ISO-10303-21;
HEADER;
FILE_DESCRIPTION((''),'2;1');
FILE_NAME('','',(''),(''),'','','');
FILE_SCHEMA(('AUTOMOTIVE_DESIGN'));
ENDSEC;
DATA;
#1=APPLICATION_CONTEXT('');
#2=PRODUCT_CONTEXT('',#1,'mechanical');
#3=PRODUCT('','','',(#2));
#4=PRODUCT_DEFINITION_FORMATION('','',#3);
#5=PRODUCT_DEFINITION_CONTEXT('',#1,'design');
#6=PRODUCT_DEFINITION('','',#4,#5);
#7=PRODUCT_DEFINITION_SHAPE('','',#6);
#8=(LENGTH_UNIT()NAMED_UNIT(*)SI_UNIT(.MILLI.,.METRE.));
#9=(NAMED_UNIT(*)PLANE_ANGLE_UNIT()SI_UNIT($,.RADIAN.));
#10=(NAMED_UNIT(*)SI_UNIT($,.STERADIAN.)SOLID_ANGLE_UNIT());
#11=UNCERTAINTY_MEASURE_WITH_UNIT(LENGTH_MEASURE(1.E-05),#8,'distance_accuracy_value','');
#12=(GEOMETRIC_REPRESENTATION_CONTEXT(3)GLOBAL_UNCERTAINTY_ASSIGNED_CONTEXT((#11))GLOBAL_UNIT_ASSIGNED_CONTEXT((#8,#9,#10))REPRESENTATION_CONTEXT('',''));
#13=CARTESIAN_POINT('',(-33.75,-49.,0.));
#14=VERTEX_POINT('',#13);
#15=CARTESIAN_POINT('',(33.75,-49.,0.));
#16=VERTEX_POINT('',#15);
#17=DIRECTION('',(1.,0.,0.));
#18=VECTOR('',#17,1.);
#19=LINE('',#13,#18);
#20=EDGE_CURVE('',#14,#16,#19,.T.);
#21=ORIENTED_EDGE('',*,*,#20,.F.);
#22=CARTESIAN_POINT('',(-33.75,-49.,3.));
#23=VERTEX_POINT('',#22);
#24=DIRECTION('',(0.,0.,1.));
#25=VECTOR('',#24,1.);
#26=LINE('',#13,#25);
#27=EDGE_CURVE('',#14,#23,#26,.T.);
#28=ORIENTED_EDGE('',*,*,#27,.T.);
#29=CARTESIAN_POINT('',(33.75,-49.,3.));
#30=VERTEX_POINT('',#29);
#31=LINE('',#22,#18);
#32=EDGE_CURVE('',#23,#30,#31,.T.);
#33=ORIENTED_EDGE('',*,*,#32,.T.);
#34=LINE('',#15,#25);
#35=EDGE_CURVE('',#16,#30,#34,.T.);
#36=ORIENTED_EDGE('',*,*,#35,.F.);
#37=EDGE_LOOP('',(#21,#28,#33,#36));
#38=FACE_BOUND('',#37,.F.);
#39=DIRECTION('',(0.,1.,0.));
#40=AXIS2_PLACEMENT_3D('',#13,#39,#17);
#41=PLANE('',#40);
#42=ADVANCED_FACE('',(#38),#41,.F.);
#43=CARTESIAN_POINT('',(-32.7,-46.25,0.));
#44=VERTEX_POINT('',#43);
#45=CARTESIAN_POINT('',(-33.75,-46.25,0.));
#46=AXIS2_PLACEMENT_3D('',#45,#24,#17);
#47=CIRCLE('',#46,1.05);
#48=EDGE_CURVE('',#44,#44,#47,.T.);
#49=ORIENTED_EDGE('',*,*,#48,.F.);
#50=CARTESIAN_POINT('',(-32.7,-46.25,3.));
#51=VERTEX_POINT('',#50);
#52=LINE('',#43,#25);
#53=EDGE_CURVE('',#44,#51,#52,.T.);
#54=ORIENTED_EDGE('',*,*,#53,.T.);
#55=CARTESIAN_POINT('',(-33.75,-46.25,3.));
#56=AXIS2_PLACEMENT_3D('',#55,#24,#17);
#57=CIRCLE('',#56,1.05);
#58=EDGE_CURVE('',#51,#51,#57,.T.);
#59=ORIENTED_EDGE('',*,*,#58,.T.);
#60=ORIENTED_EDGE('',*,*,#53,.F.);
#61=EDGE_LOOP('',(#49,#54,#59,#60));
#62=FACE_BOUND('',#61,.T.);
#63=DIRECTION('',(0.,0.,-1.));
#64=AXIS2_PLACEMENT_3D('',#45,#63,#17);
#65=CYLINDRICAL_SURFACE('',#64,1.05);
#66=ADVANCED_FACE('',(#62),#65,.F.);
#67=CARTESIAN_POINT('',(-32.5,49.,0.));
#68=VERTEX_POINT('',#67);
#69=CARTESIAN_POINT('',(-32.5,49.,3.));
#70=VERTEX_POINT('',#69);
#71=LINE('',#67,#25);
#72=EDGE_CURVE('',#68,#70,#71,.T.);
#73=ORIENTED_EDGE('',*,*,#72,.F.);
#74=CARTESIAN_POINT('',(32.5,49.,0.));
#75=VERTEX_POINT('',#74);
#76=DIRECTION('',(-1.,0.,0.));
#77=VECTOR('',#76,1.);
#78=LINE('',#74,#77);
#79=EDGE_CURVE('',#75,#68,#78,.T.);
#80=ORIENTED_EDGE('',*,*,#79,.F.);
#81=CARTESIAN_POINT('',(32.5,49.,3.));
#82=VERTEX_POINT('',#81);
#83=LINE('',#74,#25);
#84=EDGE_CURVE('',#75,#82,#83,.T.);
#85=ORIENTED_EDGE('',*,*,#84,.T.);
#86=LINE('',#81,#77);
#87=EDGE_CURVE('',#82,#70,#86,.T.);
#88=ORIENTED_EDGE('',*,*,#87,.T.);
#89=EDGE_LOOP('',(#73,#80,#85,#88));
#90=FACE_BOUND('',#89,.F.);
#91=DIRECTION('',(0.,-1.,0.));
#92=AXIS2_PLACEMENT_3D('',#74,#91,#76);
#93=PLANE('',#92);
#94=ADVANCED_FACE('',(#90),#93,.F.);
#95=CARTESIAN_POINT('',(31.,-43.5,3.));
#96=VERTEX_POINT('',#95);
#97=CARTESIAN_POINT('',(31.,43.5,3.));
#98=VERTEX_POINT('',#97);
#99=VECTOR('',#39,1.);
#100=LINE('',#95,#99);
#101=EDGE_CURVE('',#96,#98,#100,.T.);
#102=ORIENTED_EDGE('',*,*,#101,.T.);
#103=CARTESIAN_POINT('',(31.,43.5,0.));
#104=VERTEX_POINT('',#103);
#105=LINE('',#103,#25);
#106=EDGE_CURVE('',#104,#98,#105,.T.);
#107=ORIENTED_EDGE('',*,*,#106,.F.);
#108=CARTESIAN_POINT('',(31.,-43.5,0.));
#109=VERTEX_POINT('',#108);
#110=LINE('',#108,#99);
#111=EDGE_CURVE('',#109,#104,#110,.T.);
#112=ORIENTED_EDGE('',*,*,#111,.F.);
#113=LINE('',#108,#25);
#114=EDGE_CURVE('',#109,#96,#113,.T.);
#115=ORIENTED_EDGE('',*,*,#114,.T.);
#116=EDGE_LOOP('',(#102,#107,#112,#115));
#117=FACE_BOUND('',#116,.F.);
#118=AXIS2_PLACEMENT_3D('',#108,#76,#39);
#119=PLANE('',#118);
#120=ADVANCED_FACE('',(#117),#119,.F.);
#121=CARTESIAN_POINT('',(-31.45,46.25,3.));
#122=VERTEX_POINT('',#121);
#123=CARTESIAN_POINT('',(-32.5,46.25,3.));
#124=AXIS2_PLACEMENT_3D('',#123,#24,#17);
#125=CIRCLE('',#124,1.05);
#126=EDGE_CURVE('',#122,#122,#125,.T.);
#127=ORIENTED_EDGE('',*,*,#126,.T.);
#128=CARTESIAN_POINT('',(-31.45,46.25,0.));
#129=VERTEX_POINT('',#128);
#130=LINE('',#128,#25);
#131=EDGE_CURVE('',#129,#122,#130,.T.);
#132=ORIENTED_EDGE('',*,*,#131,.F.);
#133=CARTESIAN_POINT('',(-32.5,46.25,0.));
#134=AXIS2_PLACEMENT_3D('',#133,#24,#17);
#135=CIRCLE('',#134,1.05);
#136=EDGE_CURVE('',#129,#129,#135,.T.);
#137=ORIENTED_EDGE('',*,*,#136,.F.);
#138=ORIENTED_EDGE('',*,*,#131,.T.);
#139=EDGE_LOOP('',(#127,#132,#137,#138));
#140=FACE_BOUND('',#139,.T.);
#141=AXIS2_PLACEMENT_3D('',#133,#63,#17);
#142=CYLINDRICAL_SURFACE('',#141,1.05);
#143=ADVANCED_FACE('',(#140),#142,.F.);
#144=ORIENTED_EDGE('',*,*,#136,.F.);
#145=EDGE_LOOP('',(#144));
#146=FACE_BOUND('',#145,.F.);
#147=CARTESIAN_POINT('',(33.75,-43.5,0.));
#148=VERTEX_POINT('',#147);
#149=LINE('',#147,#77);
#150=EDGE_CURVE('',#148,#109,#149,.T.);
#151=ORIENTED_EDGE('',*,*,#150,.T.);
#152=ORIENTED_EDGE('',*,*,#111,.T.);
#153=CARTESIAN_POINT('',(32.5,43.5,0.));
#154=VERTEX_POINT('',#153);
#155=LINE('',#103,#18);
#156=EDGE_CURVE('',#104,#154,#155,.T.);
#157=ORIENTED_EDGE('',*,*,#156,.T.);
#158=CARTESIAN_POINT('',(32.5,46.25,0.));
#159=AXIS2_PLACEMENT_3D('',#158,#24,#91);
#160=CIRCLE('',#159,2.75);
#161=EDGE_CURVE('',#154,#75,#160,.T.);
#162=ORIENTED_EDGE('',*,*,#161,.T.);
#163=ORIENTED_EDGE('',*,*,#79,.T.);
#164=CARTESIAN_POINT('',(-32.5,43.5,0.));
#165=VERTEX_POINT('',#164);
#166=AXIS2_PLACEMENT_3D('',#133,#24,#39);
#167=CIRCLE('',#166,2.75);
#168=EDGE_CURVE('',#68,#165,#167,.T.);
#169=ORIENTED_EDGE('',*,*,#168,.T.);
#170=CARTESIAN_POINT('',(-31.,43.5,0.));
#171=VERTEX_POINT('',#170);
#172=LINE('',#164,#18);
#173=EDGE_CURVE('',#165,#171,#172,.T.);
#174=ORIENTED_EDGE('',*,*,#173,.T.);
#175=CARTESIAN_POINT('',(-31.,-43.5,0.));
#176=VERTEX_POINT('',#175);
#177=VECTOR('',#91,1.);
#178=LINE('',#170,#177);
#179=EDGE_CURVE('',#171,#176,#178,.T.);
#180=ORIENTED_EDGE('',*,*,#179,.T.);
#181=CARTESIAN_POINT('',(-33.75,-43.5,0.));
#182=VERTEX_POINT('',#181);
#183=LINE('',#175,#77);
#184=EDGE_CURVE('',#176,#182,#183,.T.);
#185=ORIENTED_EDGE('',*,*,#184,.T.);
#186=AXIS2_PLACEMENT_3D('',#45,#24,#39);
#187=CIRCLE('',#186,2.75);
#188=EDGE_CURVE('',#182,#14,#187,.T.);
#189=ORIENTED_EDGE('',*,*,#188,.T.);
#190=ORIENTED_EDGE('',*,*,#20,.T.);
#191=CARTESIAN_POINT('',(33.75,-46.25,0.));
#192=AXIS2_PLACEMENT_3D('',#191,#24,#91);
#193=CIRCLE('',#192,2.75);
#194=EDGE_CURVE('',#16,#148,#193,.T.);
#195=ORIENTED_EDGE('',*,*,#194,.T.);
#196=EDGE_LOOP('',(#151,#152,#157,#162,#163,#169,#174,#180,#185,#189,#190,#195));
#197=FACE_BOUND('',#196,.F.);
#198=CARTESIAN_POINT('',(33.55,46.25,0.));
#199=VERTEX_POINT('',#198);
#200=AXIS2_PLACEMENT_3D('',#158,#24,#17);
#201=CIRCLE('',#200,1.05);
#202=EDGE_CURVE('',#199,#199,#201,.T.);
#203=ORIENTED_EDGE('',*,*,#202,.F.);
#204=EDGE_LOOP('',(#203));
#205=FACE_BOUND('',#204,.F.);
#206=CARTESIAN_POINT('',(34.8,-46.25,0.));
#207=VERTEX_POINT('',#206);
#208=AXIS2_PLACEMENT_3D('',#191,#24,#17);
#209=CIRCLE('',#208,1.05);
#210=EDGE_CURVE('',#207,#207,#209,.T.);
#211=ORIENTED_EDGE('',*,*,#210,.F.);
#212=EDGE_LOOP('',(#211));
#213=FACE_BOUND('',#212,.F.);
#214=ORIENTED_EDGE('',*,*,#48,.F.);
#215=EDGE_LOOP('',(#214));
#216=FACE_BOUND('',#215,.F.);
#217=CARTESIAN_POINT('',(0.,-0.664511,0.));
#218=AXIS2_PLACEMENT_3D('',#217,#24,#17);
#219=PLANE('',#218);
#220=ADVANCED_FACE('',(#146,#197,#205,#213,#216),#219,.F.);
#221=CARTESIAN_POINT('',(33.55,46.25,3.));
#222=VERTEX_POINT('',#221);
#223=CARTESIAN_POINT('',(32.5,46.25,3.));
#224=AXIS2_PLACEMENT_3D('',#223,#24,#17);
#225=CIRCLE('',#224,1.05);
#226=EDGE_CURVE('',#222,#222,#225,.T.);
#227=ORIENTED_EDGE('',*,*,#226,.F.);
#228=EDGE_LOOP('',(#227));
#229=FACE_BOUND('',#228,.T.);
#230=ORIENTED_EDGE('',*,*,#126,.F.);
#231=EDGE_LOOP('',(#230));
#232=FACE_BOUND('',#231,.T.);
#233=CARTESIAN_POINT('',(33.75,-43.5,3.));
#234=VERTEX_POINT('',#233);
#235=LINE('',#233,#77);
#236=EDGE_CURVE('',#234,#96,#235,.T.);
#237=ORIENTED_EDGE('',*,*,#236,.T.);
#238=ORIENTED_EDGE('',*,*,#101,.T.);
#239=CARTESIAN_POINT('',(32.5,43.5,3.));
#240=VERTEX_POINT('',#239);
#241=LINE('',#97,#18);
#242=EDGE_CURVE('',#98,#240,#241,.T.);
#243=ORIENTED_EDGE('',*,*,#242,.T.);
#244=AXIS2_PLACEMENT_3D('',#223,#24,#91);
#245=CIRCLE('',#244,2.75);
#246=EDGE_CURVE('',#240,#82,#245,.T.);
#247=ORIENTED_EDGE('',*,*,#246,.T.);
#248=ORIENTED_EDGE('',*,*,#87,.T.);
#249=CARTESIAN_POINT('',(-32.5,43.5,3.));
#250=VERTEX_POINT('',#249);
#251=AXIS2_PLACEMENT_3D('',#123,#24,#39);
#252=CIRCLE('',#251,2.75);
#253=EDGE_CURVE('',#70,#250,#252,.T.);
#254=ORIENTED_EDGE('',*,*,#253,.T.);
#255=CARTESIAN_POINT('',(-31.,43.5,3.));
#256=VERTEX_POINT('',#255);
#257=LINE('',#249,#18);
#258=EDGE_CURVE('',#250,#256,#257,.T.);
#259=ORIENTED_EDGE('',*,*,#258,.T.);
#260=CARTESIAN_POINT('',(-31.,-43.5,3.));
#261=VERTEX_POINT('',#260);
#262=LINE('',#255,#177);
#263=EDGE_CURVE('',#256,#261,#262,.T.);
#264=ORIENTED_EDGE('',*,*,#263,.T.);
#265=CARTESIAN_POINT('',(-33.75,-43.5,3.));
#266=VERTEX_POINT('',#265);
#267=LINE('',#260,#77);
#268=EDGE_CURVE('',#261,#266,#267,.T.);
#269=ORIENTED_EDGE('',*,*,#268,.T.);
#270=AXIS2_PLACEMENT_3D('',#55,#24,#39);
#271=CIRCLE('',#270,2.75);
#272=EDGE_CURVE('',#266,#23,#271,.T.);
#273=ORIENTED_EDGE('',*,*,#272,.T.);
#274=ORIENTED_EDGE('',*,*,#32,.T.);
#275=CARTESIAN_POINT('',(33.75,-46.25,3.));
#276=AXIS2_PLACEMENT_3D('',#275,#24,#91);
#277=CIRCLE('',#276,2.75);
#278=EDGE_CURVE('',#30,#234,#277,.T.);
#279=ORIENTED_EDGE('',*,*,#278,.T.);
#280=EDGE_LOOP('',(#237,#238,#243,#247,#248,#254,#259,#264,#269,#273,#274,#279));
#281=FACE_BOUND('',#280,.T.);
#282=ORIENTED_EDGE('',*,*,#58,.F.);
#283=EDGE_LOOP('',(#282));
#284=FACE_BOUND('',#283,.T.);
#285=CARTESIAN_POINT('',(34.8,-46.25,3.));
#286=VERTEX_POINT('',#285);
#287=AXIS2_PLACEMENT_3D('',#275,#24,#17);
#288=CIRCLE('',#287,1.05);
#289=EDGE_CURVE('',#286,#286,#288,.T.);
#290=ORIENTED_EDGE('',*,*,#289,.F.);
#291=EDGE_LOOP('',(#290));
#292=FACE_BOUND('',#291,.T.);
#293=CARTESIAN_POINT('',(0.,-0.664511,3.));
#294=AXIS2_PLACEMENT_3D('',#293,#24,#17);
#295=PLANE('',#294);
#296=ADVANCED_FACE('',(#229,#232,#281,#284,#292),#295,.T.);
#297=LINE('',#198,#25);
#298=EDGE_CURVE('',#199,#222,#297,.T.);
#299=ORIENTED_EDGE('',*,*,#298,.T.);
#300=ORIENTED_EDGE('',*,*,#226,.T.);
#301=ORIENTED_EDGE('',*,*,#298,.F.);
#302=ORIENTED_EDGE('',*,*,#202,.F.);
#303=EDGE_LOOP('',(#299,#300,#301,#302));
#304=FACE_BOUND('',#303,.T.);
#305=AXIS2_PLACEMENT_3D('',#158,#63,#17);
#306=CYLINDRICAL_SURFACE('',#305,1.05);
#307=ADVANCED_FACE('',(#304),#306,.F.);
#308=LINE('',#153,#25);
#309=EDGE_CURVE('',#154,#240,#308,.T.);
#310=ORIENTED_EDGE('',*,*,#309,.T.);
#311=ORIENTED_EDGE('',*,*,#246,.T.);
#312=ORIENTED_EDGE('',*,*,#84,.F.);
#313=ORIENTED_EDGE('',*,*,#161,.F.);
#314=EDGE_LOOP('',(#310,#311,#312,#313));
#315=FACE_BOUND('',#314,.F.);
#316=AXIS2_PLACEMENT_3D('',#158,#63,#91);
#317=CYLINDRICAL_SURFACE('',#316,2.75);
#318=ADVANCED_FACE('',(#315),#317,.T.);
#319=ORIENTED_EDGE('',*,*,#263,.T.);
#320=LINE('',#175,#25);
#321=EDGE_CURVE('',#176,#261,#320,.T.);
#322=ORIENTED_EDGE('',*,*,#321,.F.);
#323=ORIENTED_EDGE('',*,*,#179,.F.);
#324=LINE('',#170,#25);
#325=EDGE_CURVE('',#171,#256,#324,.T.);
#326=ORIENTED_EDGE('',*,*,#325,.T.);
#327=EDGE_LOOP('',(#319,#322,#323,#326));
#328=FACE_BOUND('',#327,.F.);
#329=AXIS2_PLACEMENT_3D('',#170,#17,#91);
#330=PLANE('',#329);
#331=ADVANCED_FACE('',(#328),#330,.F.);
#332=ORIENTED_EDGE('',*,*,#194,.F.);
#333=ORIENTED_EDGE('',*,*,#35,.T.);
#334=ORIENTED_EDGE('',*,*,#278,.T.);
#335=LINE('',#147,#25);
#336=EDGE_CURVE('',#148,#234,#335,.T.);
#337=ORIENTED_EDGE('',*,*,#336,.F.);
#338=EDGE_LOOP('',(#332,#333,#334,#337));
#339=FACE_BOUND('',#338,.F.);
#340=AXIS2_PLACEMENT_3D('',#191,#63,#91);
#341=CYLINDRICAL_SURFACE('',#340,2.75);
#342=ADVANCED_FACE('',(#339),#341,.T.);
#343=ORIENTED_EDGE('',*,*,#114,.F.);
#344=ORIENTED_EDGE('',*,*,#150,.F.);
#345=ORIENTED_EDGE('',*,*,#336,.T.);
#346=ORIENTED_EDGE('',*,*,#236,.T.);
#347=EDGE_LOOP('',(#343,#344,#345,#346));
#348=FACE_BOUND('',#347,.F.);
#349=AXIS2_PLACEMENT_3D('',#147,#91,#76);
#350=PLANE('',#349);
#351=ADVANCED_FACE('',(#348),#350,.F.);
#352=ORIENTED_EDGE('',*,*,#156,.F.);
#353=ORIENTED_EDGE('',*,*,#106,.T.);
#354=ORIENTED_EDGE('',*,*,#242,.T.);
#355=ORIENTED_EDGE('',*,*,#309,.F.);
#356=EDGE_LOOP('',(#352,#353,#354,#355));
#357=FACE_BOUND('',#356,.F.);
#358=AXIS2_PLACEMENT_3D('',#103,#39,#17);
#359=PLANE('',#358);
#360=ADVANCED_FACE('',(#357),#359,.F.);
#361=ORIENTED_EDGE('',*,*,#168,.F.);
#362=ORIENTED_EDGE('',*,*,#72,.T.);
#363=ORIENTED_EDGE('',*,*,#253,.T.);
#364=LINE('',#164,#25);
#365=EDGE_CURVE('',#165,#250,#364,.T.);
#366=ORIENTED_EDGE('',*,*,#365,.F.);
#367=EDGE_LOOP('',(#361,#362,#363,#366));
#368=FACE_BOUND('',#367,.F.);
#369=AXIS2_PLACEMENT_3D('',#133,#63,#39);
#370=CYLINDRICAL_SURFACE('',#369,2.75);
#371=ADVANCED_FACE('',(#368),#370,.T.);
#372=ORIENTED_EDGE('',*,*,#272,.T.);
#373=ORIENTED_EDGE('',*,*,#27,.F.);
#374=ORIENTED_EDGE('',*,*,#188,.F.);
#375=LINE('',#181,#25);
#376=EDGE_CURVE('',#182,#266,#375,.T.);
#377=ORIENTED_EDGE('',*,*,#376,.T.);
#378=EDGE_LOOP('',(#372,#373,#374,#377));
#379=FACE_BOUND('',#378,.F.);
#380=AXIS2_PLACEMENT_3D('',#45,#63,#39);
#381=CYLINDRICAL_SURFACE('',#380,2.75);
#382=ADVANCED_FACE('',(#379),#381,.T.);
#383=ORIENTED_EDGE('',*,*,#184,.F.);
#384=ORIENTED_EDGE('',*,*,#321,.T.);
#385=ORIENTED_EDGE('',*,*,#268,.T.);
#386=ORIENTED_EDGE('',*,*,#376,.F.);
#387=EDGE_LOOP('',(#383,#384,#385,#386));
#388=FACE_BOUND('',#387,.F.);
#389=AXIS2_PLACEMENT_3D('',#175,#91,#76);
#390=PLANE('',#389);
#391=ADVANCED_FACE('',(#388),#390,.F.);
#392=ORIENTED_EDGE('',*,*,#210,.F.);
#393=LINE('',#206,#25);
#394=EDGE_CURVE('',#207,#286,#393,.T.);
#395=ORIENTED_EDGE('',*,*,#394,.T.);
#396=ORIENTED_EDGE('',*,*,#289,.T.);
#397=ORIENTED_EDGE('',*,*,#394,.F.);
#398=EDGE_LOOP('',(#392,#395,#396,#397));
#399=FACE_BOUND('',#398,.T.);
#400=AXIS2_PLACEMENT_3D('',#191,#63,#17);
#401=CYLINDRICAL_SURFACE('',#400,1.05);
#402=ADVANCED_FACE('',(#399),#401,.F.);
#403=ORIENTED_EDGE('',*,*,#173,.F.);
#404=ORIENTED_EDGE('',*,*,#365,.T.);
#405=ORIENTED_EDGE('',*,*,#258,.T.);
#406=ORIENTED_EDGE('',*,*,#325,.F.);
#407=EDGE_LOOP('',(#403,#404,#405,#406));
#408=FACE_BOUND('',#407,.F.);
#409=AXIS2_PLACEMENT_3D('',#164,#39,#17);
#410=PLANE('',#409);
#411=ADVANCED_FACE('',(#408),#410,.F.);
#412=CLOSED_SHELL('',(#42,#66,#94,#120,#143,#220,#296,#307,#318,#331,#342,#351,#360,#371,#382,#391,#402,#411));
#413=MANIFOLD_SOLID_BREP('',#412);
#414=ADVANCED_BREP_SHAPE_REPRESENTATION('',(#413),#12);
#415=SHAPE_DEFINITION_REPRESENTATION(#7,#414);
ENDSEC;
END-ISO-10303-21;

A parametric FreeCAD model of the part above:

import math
import FreeCAD as App
import Part
import Sketcher
Q = App.Units.Quantity

doc = App.newDocument("Part")
params = doc.addObject("Spreadsheet::Sheet", "Params")
for row, (alias, value) in enumerate([
    ("sketch1_diameter", "2.1 mm"),
    ("sketch1_width", "65 mm"),
    ("sketch1_height", "87 mm"),
    ("sketch1_radius", "2.75 mm"),
    ("sketch1_width2", "67.5 mm"),
    ("pad1_length", "3 mm"),
], start=1):
    params.set(f"A{row}", alias)
    params.set(f"B{row}", "=" + value)
    params.setAlias(f"B{row}", alias)

body = doc.addObject("PartDesign::Body", "Body")

# Sketch on XY plane
sketch1 = body.newObject("Sketcher::SketchObject", "Sketch")
sketch1.AttachmentSupport = (doc.getObject("XY_Plane"), [""])
sketch1.MapMode = "FlatFace"
sketch1.addGeometry(Part.LineSegment(App.Vector(-31, -43.5, 0), App.Vector(-33.8, -43.5, 0)), False)
sketch1.addGeometry(Part.ArcOfCircle(Part.Circle(App.Vector(-33.8, -46.2, 0), App.Vector(0, 0, 1), 2.8), math.radians(90), math.radians(270)), False)
sketch1.addGeometry(Part.LineSegment(App.Vector(-33.8, -49, 0), App.Vector(33.8, -49, 0)), False)
sketch1.addGeometry(Part.ArcOfCircle(Part.Circle(App.Vector(33.8, -46.2, 0), App.Vector(0, 0, 1), 2.8), math.radians(-90), math.radians(90)), False)
sketch1.addGeometry(Part.LineSegment(App.Vector(33.8, -43.5, 0), App.Vector(31, -43.5, 0)), False)
sketch1.addGeometry(Part.LineSegment(App.Vector(31, -43.5, 0), App.Vector(31, 43.5, 0)), False)
sketch1.addGeometry(Part.LineSegment(App.Vector(31, 43.5, 0), App.Vector(32.5, 43.5, 0)), False)
sketch1.addGeometry(Part.ArcOfCircle(Part.Circle(App.Vector(32.5, 46.2, 0), App.Vector(0, 0, 1), 2.8), math.radians(-90), math.radians(90)), False)
sketch1.addGeometry(Part.LineSegment(App.Vector(32.5, 49, 0), App.Vector(-32.5, 49, 0)), False)
sketch1.addGeometry(Part.ArcOfCircle(Part.Circle(App.Vector(-32.5, 46.2, 0), App.Vector(0, 0, 1), 2.8), math.radians(90), math.radians(270)), False)
sketch1.addGeometry(Part.LineSegment(App.Vector(-32.5, 43.5, 0), App.Vector(-31, 43.5, 0)), False)
sketch1.addGeometry(Part.LineSegment(App.Vector(-31, 43.5, 0), App.Vector(-31, -43.5, 0)), False)
sketch1.addGeometry(Part.Circle(App.Vector(-33.8, -46.2, 0), App.Vector(0, 0, 1), 1.1), False)
sketch1.addGeometry(Part.Circle(App.Vector(33.8, -46.2, 0), App.Vector(0, 0, 1), 1.1), False)
sketch1.addGeometry(Part.Circle(App.Vector(-32.5, 46.2, 0), App.Vector(0, 0, 1), 1.1), False)
sketch1.addGeometry(Part.Circle(App.Vector(32.5, 46.2, 0), App.Vector(0, 0, 1), 1.1), False)
sketch1.addConstraint(Sketcher.Constraint("Tangent", 0, 2, 1, 1))
sketch1.addConstraint(Sketcher.Constraint("Tangent", 1, 2, 2, 1))
sketch1.addConstraint(Sketcher.Constraint("Tangent", 2, 2, 3, 1))
sketch1.addConstraint(Sketcher.Constraint("Tangent", 3, 2, 4, 1))
sketch1.addConstraint(Sketcher.Constraint("Coincident", 4, 2, 5, 1))
sketch1.addConstraint(Sketcher.Constraint("Coincident", 5, 2, 6, 1))
sketch1.addConstraint(Sketcher.Constraint("Tangent", 6, 2, 7, 1))
sketch1.addConstraint(Sketcher.Constraint("Tangent", 7, 2, 8, 1))
sketch1.addConstraint(Sketcher.Constraint("Tangent", 8, 2, 9, 1))
sketch1.addConstraint(Sketcher.Constraint("Tangent", 9, 2, 10, 1))
sketch1.addConstraint(Sketcher.Constraint("Coincident", 10, 2, 11, 1))
sketch1.addConstraint(Sketcher.Constraint("Coincident", 11, 2, 0, 1))
sketch1.addConstraint(Sketcher.Constraint("Horizontal", 0))
sketch1.addConstraint(Sketcher.Constraint("Horizontal", 2))
sketch1.addConstraint(Sketcher.Constraint("Horizontal", 4))
sketch1.addConstraint(Sketcher.Constraint("Vertical", 5))
sketch1.addConstraint(Sketcher.Constraint("Horizontal", 6))
sketch1.addConstraint(Sketcher.Constraint("Horizontal", 8))
sketch1.addConstraint(Sketcher.Constraint("Horizontal", 10))
sketch1.addConstraint(Sketcher.Constraint("Vertical", 11))
sketch1.addConstraint(Sketcher.Constraint("Coincident", 12, 3, 1, 3))
sketch1.addConstraint(Sketcher.Constraint("Coincident", 13, 3, 3, 3))
sketch1.addConstraint(Sketcher.Constraint("Coincident", 14, 3, 9, 3))
sketch1.addConstraint(Sketcher.Constraint("Coincident", 15, 3, 7, 3))
sketch1.addConstraint(Sketcher.Constraint("Equal", 1, 3))
sketch1.addConstraint(Sketcher.Constraint("Equal", 3, 7))
sketch1.addConstraint(Sketcher.Constraint("Equal", 7, 9))
sketch1.addConstraint(Sketcher.Constraint("Equal", 12, 13))
sketch1.addConstraint(Sketcher.Constraint("Equal", 13, 14))
sketch1.addConstraint(Sketcher.Constraint("Equal", 14, 15))
sketch1.addConstraint(Sketcher.Constraint("Symmetric", 4, 2, 10, 2, -1, 1))
sketch1.addConstraint(Sketcher.Constraint("Equal", 0, 4))
sketch1.addConstraint(Sketcher.Constraint("Equal", 6, 10))
sketch1.addConstraint(Sketcher.Constraint("Diameter", 12, Q("2.1 mm")))
sketch1.addConstraint(Sketcher.Constraint("DistanceX", 8, 2, 8, 1, Q("65 mm")))
sketch1.addConstraint(Sketcher.Constraint("DistanceY", 5, 1, 5, 2, Q("87 mm")))
sketch1.addConstraint(Sketcher.Constraint("Radius", 1, Q("2.75 mm")))
sketch1.addConstraint(Sketcher.Constraint("DistanceX", 2, 1, 2, 2, Q("67.5 mm")))
sketch1.addConstraint(Sketcher.Constraint("DistanceX", 6, 1, 6, 2, Q("1.5 mm")))
sketch1.setExpression("Constraints[33]", "Params.sketch1_diameter")
sketch1.setExpression("Constraints[34]", "Params.sketch1_width")
sketch1.setExpression("Constraints[35]", "Params.sketch1_height")
sketch1.setExpression("Constraints[36]", "Params.sketch1_radius")
sketch1.setExpression("Constraints[37]", "Params.sketch1_width2")
pad1 = body.newObject("PartDesign::Pad", "Pad")
pad1.Profile = sketch1
pad1.setExpression("Length", "Params.pad1_length")

doc.recompute()
